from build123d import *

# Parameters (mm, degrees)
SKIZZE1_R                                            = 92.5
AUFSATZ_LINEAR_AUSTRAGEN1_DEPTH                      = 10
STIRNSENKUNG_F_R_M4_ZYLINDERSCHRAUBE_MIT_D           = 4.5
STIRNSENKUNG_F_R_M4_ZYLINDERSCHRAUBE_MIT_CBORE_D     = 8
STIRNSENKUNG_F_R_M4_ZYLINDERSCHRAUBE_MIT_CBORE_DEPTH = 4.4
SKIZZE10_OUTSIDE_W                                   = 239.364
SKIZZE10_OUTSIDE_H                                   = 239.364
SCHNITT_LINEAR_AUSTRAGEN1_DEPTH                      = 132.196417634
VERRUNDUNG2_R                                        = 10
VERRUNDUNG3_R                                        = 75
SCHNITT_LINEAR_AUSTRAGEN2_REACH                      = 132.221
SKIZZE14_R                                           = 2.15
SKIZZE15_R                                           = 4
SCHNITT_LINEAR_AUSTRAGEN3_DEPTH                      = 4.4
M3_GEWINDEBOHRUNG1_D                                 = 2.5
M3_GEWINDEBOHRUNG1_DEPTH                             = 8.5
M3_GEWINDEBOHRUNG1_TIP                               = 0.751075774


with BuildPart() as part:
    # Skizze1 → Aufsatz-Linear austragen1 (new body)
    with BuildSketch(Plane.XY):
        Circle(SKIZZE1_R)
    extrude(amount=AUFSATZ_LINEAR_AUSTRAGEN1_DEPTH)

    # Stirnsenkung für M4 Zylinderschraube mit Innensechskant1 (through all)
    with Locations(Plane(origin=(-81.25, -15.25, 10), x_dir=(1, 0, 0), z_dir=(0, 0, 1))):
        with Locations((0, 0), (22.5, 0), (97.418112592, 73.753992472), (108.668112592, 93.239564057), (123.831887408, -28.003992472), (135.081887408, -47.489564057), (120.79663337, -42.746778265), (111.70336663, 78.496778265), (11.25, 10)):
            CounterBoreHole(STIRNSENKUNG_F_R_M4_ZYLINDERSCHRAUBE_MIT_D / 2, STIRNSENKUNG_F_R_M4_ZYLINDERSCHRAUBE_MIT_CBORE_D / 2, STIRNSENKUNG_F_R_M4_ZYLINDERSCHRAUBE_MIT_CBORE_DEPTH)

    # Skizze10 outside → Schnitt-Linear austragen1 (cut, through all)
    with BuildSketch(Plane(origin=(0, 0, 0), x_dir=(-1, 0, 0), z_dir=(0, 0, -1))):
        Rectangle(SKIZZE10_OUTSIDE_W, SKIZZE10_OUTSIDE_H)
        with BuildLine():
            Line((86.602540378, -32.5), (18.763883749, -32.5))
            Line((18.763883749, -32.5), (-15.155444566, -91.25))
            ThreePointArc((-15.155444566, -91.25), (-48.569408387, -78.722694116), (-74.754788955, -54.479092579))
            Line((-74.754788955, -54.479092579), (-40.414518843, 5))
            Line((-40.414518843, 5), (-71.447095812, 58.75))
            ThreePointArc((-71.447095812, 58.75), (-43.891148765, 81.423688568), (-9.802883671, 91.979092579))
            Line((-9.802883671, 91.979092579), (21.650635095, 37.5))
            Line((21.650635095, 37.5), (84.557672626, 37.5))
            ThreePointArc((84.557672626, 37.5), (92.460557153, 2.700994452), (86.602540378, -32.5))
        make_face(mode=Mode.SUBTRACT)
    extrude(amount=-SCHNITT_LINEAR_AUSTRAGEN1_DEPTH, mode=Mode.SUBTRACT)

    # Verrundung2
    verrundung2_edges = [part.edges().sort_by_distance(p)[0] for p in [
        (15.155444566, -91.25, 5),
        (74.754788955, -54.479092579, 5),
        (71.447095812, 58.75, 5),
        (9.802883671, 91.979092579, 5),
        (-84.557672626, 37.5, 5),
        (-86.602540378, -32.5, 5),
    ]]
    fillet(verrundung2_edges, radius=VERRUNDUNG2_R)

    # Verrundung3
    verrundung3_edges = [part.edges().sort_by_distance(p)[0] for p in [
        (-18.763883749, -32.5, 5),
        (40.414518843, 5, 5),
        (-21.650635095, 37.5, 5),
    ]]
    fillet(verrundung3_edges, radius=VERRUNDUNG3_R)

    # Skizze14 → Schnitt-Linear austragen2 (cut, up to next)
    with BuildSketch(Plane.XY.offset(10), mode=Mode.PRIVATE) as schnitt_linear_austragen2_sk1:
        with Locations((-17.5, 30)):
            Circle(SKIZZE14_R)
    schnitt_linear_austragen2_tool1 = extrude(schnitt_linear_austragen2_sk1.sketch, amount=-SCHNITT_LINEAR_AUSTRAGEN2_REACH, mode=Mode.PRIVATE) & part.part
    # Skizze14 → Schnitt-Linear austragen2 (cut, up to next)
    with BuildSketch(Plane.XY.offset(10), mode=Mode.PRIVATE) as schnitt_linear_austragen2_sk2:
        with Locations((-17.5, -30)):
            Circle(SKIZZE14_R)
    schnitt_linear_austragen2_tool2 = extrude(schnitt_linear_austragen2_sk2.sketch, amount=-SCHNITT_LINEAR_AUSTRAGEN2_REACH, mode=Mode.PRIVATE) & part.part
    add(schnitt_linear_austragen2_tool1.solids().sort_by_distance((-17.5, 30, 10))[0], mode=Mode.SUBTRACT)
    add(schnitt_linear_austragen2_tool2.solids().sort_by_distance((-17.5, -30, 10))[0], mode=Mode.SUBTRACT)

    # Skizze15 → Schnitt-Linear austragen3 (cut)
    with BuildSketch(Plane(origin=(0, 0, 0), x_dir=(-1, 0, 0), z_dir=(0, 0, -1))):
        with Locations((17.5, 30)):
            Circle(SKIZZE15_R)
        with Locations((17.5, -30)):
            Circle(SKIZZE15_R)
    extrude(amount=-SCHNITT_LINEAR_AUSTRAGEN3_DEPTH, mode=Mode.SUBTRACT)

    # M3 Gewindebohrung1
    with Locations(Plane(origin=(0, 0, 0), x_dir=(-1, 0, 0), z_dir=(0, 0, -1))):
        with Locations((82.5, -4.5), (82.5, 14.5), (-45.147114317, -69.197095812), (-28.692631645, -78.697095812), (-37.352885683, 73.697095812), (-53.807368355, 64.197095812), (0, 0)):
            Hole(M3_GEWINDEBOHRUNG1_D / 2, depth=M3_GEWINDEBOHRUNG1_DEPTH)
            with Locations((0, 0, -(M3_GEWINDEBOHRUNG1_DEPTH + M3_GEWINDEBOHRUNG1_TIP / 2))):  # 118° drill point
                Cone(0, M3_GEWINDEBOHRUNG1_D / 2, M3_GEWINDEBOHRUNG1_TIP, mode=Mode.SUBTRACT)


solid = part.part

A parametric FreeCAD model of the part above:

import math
import FreeCAD as App
import Part
import Sketcher
from FreeCAD import Vector
Q = App.Units.Quantity


def edges_at(feature, points):
    """Names of the edges that pass closest to the given points."""
    edges = feature.Shape.Edges
    near = lambda p: min(range(len(edges)), key=lambda i: edges[i].distToShape(Part.Vertex(*p))[0])
    return sorted({f"Edge{near(p) + 1}" for p in points})


def add_polygon(sketch, points):
    """Adds a closed chain of lines whose ends are joined by coincident constraints."""
    first, n = sketch.GeometryCount, len(points)
    for a, b in zip(points, points[1:] + points[:1]):
        sketch.addGeometry(Part.LineSegment(App.Vector(*a, 0), App.Vector(*b, 0)), False)
    for i in range(n):
        sketch.addConstraint(Sketcher.Constraint("Coincident", first + i, 2, first + (i + 1) % n, 1))

doc = App.newDocument("Part")
body = doc.addObject("PartDesign::Body", "Body")

# Sketch on XY plane
sketch1 = body.newObject("Sketcher::SketchObject", "Sketch")
sketch1.AttachmentSupport = (doc.getObject("XY_Plane"), [""])
sketch1.MapMode = "FlatFace"
sketch1.addGeometry(Part.Circle(Vector(0, 0, 0), Vector(0, 0, 1), 92), False)
sketch1.addConstraint(Sketcher.Constraint("Coincident", 0, 3, -1, 1))
sketch1.addConstraint(Sketcher.Constraint("Diameter", 0, 185.0))
pad1 = body.newObject("PartDesign::Pad", "Pad")
pad1.Profile = sketch1
pad1.Length = 10

# Sketch on XY plane
sketch2 = body.newObject("Sketcher::SketchObject", "Sketch001")
sketch2.AttachmentSupport = (doc.getObject("XY_Plane"), [""])
sketch2.MapMode = "FlatFace"
sketch2.AttachmentOffset = App.Placement(Vector(0, 0, 10), App.Rotation())
sketch2.addGeometry(Part.Circle(Vector(-81.2, -15.2, 0), Vector(0, 0, 1), 2.2), False)
sketch2.addGeometry(Part.Circle(Vector(-58.8, -15.2, 0), Vector(0, 0, 1), 2.2), False)
sketch2.addGeometry(Part.Circle(Vector(16.2, 58.5, 0), Vector(0, 0, 1), 2.2), False)
sketch2.addGeometry(Part.Circle(Vector(27.4, 78, 0), Vector(0, 0, 1), 2.2), False)
sketch2.addGeometry(Part.Circle(Vector(42.6, -43.3, 0), Vector(0, 0, 1), 2.2), False)
sketch2.addGeometry(Part.Circle(Vector(53.8, -62.7, 0), Vector(0, 0, 1), 2.2), False)
sketch2.addGeometry(Part.Circle(Vector(39.5, -58, 0), Vector(0, 0, 1), 2.2), False)
sketch2.addGeometry(Part.Circle(Vector(30.5, 63.2, 0), Vector(0, 0, 1), 2.2), False)
sketch2.addGeometry(Part.Circle(Vector(-70, -5.2, 0), Vector(0, 0, 1), 2.2), False)
sketch2.addConstraint(Sketcher.Constraint("Equal", 0, 1))
sketch2.addConstraint(Sketcher.Constraint("Equal", 1, 2))
sketch2.addConstraint(Sketcher.Constraint("Equal", 2, 3))
sketch2.addConstraint(Sketcher.Constraint("Equal", 3, 4))
sketch2.addConstraint(Sketcher.Constraint("Equal", 4, 5))
sketch2.addConstraint(Sketcher.Constraint("Equal", 5, 6))
sketch2.addConstraint(Sketcher.Constraint("Equal", 6, 7))
sketch2.addConstraint(Sketcher.Constraint("Equal", 7, 8))
sketch2.addConstraint(Sketcher.Constraint("Horizontal", 0, 3, 1, 3))
sketch2.addConstraint(Sketcher.Constraint("Diameter", 0, 4.5))
sketch2.addConstraint(Sketcher.Constraint("DistanceX", 8, 3, -1, 1, 70.0))
sketch2.addConstraint(Sketcher.Constraint("DistanceY", 0, 3, 8, 3, 10.0))
sketch2.addConstraint(Sketcher.Constraint("DistanceX", 0, 3, 1, 3, 22.5))
sketch2.addConstraint(Sketcher.Constraint("DistanceX", 0, 3, -1, 1, 81.25))
sketch2.addConstraint(Sketcher.Constraint("DistanceY", 0, 3, -1, 1, 15.25))
sketch2.addConstraint(Sketcher.Constraint("DistanceX", 2, 3, 3, 3, 11.25))
sketch2.addConstraint(Sketcher.Constraint("DistanceX", 4, 3, 5, 3, 11.25))
sketch2.addConstraint(Sketcher.Constraint("DistanceY", 6, 3, -1, 1, 57.996778))
sketch2.addConstraint(Sketcher.Constraint("DistanceY", -1, 1, 7, 3, 63.246778))
sketch2.addConstraint(Sketcher.Constraint("DistanceY", 2, 3, 3, 3, 19.485572))
sketch2.addConstraint(Sketcher.Constraint("DistanceY", 5, 3, 4, 3, 19.485572))
sketch2.addConstraint(Sketcher.Constraint("DistanceY", 5, 3, 3, 3, 140.729128))
sketch2.addConstraint(Sketcher.Constraint("DistanceX", 2, 3, 6, 3, 23.378521))
sketch2.addConstraint(Sketcher.Constraint("DistanceY", 6, 3, 2, 3, 116.500771))
sketch2.addConstraint(Sketcher.Constraint("DistanceX", 7, 3, 4, 3, 12.128521))
sketch2.addConstraint(Sketcher.Constraint("DistanceX", -1, 1, 2, 3, 16.168113))
sketch2.addConstraint(Sketcher.Constraint("DistanceX", -1, 1, 4, 3, 42.581887))
doc.recompute()
hole = body.newObject("PartDesign::Hole", "Hole")
hole.Profile = sketch2
hole.ThreadType = "None"
hole.Diameter = 4.5
hole.DepthType = "ThroughAll"
hole.HoleCutType = "Counterbore"
hole.HoleCutDiameter = 8
hole.HoleCutDepth = 4.4

# Sketch on XY plane
sketch3 = body.newObject("Sketcher::SketchObject", "Sketch002")
sketch3.AttachmentSupport = (doc.getObject("XY_Plane"), [""])
sketch3.MapMode = "FlatFace"
add_polygon(sketch3, [(120, 120), (120, -120), (-120, -120), (-120, 120)])  # lines 0-3
sketch3.addGeometry(Part.ArcOfCircle(Part.Circle(Vector(0, 0, 0), Vector(0, 0, 1), 92), math.radians(156), math.radians(201)), False)  # 4
sketch3.addGeometry(Part.LineSegment(Vector(-87, -32, 0), Vector(-19, -32, 0)), False)  # 5
sketch3.addGeometry(Part.LineSegment(Vector(-19, -32, 0), Vector(15, -91, 0)), False)  # 6
sketch3.addGeometry(Part.ArcOfCircle(Part.Circle(Vector(0, 0, 0), Vector(0, 0, 1), 93), math.radians(-81), math.radians(-36)), False)  # 7
sketch3.addGeometry(Part.LineSegment(Vector(75, -54, 0), Vector(40, 5, 0)), False)  # 8
sketch3.addGeometry(Part.LineSegment(Vector(40, 5, 0), Vector(71, 59, 0)), False)  # 9
sketch3.addGeometry(Part.ArcOfCircle(Part.Circle(Vector(0, 0, 0), Vector(0, 0, 1), 93), math.radians(39), math.radians(84)), False)  # 10
sketch3.addGeometry(Part.LineSegment(Vector(10, 92, 0), Vector(-22, 38, 0)), False)  # 11
sketch3.addGeometry(Part.LineSegment(Vector(-22, 38, 0), Vector(-85, 38, 0)), False)  # 12
sketch3.addConstraint(Sketcher.Constraint("Coincident", 4, 2, 5, 1))
sketch3.addConstraint(Sketcher.Constraint("Coincident", 5, 2, 6, 1))
sketch3.addConstraint(Sketcher.Constraint("Coincident", 6, 2, 7, 1))
sketch3.addConstraint(Sketcher.Constraint("Coincident", 7, 2, 8, 1))
sketch3.addConstraint(Sketcher.Constraint("Coincident", 8, 2, 9, 1))
sketch3.addConstraint(Sketcher.Constraint("Coincident", 9, 2, 10, 1))
sketch3.addConstraint(Sketcher.Constraint("Coincident", 10, 2, 11, 1))
sketch3.addConstraint(Sketcher.Constraint("Coincident", 11, 2, 12, 1))
sketch3.addConstraint(Sketcher.Constraint("Coincident", 12, 2, 4, 1))
sketch3.addConstraint(Sketcher.Constraint("Vertical", 0))
sketch3.addConstraint(Sketcher.Constraint("Horizontal", 1))
sketch3.addConstraint(Sketcher.Constraint("Vertical", 2))
sketch3.addConstraint(Sketcher.Constraint("Horizontal", 3))
sketch3.addConstraint(Sketcher.Constraint("Horizontal", 5))
sketch3.addConstraint(Sketcher.Constraint("Horizontal", 12))
sketch3.addConstraint(Sketcher.Constraint("Coincident", 4, 3, -1, 1))
sketch3.addConstraint(Sketcher.Constraint("Coincident", 7, 3, -1, 1))
sketch3.addConstraint(Sketcher.Constraint("Coincident", 10, 3, -1, 1))
sketch3.addConstraint(Sketcher.Constraint("Equal", 4, 7))
sketch3.addConstraint(Sketcher.Constraint("Equal", 7, 10))
sketch3.addConstraint(Sketcher.Constraint("Symmetric", 0, 2, 2, 2, -1, 1))
sketch3.addConstraint(Sketcher.Constraint("Parallel", 6, 8))
sketch3.addConstraint(Sketcher.Constraint("Parallel", 9, 11))
sketch3.addConstraint(Sketcher.Constraint("Equal", 3, 0))
sketch3.addConstraint(Sketcher.Constraint("Radius", 4, 92.5))
sketch3.addConstraint(Sketcher.Constraint("Angle", 6, Q("-60 deg")))
sketch3.addConstraint(Sketcher.Constraint("Angle", 9, Q("60 deg")))
sketch3.addConstraint(Sketcher.Constraint("DistanceY", -1, 1, 8, 2, 5.0))
sketch3.addConstraint(Sketcher.Constraint("DistanceY", 5, 2, 11, 2, 70.0))
sketch3.addConstraint(Sketcher.Constraint("DistanceY", 4, 2, -1, 1, 32.5))
sketch3.addConstraint(Sketcher.Constraint("DistanceX", 1, 2, 1, 1, 239.364))
sketch3.addConstraint(Sketcher.Constraint("DistanceY", 6, 2, -1, 1, 91.25))
sketch3.addConstraint(Sketcher.Constraint("DistanceY", -1, 1, 9, 2, 58.75))
sketch3.addConstraint(Sketcher.Constraint("DistanceX", 12, 2, 12, 1, 62.907038))
pocket1 = body.newObject("PartDesign::Pocket", "Pocket")
pocket1.Profile = sketch3
pocket1.Type = "ThroughAll"
pocket1.Reversed = True
doc.recompute()

fillet = body.newObject("PartDesign::Fillet", "Fillet")
fillet.Base = (pocket1, edges_at(pocket1, [
    (15.155, -91.25, 5),
    (74.755, -54.479, 5),
    (71.447, 58.75, 5),
    (9.803, 91.979, 5),
    (-84.558, 37.5, 5),
    (-86.603, -32.5, 5),
]))
fillet.Radius = 10
doc.recompute()

fillet2 = body.newObject("PartDesign::Fillet", "Fillet001")
fillet2.Base = (fillet, edges_at(fillet, [(-18.764, -32.5, 5), (40.415, 5, 5), (-21.651, 37.5, 5)]))
fillet2.Radius = 75

# Sketch on XY plane
sketch4 = body.newObject("Sketcher::SketchObject", "Sketch003")
sketch4.AttachmentSupport = (doc.getObject("XY_Plane"), [""])
sketch4.MapMode = "FlatFace"
sketch4.AttachmentOffset = App.Placement(Vector(0, 0, 10), App.Rotation())
sketch4.addGeometry(Part.Circle(Vector(-17.5, 30, 0), Vector(0, 0, 1), 2.1), False)
sketch4.addConstraint(Sketcher.Constraint("Diameter", 0, 4.3))
sketch4.addConstraint(Sketcher.Constraint("DistanceY", -1, 1, 0, 3, 30.0))
sketch4.addConstraint(Sketcher.Constraint("DistanceX", 0, 3, -1, 1, 17.5))
pocket2 = body.newObject("PartDesign::Pocket", "Pocket001")
pocket2.Profile = sketch4
pocket2.Type = "UpToFirst"

# Sketch on XY plane
sketch5 = body.newObject("Sketcher::SketchObject", "Sketch004")
sketch5.AttachmentSupport = (doc.getObject("XY_Plane"), [""])
sketch5.MapMode = "FlatFace"
sketch5.AttachmentOffset = App.Placement(Vector(0, 0, 10), App.Rotation())
sketch5.addGeometry(Part.Circle(Vector(-17.5, -30, 0), Vector(0, 0, 1), 2.1), False)
sketch5.addConstraint(Sketcher.Constraint("Diameter", 0, 4.3))
sketch5.addConstraint(Sketcher.Constraint("DistanceY", 0, 3, -1, 1, 30.0))
sketch5.addConstraint(Sketcher.Constraint("DistanceX", 0, 3, -1, 1, 17.5))
pocket3 = body.newObject("PartDesign::Pocket", "Pocket002")
pocket3.Profile = sketch5
pocket3.Type = "UpToFirst"

# Sketch on XY plane
sketch6 = body.newObject("Sketcher::SketchObject", "Sketch005")
sketch6.AttachmentSupport = (doc.getObject("XY_Plane"), [""])
sketch6.MapMode = "FlatFace"
sketch6.addGeometry(Part.Circle(Vector(-17.5, 30, 0), Vector(0, 0, 1), 4), False)
sketch6.addGeometry(Part.Circle(Vector(-17.5, -30, 0), Vector(0, 0, 1), 4), False)
sketch6.addConstraint(Sketcher.Constraint("Equal", 0, 1))
sketch6.addConstraint(Sketcher.Constraint("Symmetric", 0, 3, 1, 3, -1))
sketch6.addConstraint(Sketcher.Constraint("Diameter", 0, 8.0))
sketch6.addConstraint(Sketcher.Constraint("DistanceY", -1, 1, 0, 3, 30.0))
sketch6.addConstraint(Sketcher.Constraint("DistanceX", 0, 3, -1, 1, 17.5))
pocket4 = body.newObject("PartDesign::Pocket", "Pocket003")
pocket4.Profile = sketch6
pocket4.Length = 4.4
pocket4.Reversed = True

# Sketch on XY plane
sketch7 = body.newObject("Sketcher::SketchObject", "Sketch006")
sketch7.AttachmentSupport = (doc.getObject("XY_Plane"), [""])
sketch7.MapMode = "FlatFace"
sketch7.addGeometry(Part.Circle(Vector(-82.5, -4.5, 0), Vector(0, 0, 1), 1.2), False)
sketch7.addGeometry(Part.Circle(Vector(-82.5, 14.5, 0), Vector(0, 0, 1), 1.2), False)
sketch7.addGeometry(Part.Circle(Vector(45.1, -69.2, 0), Vector(0, 0, 1), 1.2), False)
sketch7.addGeometry(Part.Circle(Vector(28.7, -78.7, 0), Vector(0, 0, 1), 1.2), False)
sketch7.addGeometry(Part.Circle(Vector(37.4, 73.7, 0), Vector(0, 0, 1), 1.2), False)
sketch7.addGeometry(Part.Circle(Vector(53.8, 64.2, 0), Vector(0, 0, 1), 1.2), False)
sketch7.addGeometry(Part.Circle(Vector(0, 0, 0), Vector(0, 0, 1), 1.2), False)
sketch7.addConstraint(Sketcher.Constraint("Coincident", 6, 3, -1, 1))
sketch7.addConstraint(Sketcher.Constraint("Equal", 0, 1))
sketch7.addConstraint(Sketcher.Constraint("Equal", 1, 2))
sketch7.addConstraint(Sketcher.Constraint("Equal", 2, 3))
sketch7.addConstraint(Sketcher.Constraint("Equal", 3, 4))
sketch7.addConstraint(Sketcher.Constraint("Equal", 4, 5))
sketch7.addConstraint(Sketcher.Constraint("Equal", 5, 6))
sketch7.addConstraint(Sketcher.Constraint("Vertical", 0, 3, 1, 3))
sketch7.addConstraint(Sketcher.Constraint("Diameter", 0, 2.5))
sketch7.addConstraint(Sketcher.Constraint("DistanceY", 0, 3, 1, 3, 19.0))
sketch7.addConstraint(Sketcher.Constraint("DistanceX", 0, 3, -1, 1, 82.5))
sketch7.addConstraint(Sketcher.Constraint("DistanceY", 0, 3, -1, 1, 4.5))
sketch7.addConstraint(Sketcher.Constraint("DistanceY", 3, 3, 2, 3, 9.5))
sketch7.addConstraint(Sketcher.Constraint("DistanceY", 5, 3, 4, 3, 9.5))
sketch7.addConstraint(Sketcher.Constraint("DistanceX", -1, 1, 3, 3, 28.692632))
sketch7.addConstraint(Sketcher.Constraint("DistanceX", -1, 1, 5, 3, 53.807368))
sketch7.addConstraint(Sketcher.Constraint("DistanceX", 4, 3, 2, 3, 7.794229))
sketch7.addConstraint(Sketcher.Constraint("DistanceY", 2, 3, 4, 3, 142.894192))
sketch7.addConstraint(Sketcher.Constraint("DistanceX", -1, 1, 2, 3, 45.147114))
sketch7.addConstraint(Sketcher.Constraint("DistanceY", 2, 3, -1, 1, 69.197096))
doc.recompute()
hole2 = body.newObject("PartDesign::Hole", "Hole001")
hole2.Profile = sketch7
hole2.ThreadType = "None"
hole2.Diameter = 2.5
hole2.DepthType = "Dimension"
hole2.Depth = 8.5
hole2.DrillPoint = "Angled"
hole2.DrillPointAngle = 118
hole2.Reversed = True

doc.recompute()
